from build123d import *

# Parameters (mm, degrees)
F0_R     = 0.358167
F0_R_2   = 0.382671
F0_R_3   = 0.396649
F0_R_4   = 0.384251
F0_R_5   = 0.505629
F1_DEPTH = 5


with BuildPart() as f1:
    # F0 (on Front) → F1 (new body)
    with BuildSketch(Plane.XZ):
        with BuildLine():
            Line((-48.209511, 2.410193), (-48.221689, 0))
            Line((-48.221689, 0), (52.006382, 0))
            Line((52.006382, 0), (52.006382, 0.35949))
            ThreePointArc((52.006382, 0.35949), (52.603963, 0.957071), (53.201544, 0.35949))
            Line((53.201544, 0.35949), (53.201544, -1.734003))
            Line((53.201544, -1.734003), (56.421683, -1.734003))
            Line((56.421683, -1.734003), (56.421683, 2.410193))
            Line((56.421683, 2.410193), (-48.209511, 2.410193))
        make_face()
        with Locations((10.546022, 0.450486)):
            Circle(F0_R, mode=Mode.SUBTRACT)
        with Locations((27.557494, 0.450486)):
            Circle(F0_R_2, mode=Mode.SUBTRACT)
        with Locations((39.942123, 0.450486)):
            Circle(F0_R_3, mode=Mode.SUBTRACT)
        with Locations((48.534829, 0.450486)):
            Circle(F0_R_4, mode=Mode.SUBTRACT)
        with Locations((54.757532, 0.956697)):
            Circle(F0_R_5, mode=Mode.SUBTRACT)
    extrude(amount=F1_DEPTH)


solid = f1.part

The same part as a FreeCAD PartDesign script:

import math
import FreeCAD as App
import Part
import Sketcher

V = App.Vector
Q = App.Units.Quantity

doc = App.newDocument("Part")
body = doc.addObject("PartDesign::Body", "Body")

# Sketch on XZ plane
sketch1 = body.newObject("Sketcher::SketchObject", "Sketch")
sketch1.AttachmentSupport = (doc.getObject("XZ_Plane"), [""])
sketch1.MapMode = "FlatFace"
sketch1.addGeometry([
    Part.LineSegment(V(-48.21, 2.41, 0), V(-48.22, 0, 0)),  # 0
    Part.LineSegment(V(-48.22, 0, 0), V(52.01, 0, 0)),  # 1
    Part.LineSegment(V(52.01, 0, 0), V(52.01, 0.36, 0)),  # 2
    Part.ArcOfCircle(Part.Circle(V(52.6, 0.36, 0), V(0, 0, 1), 0.6), math.radians(0), math.radians(180)),  # 3
    Part.LineSegment(V(53.2, 0.36, 0), V(53.2, -1.73, 0)),  # 4
    Part.LineSegment(V(53.2, -1.73, 0), V(56.42, -1.73, 0)),  # 5
    Part.LineSegment(V(56.42, -1.73, 0), V(56.42, 2.41, 0)),  # 6
    Part.LineSegment(V(56.42, 2.41, 0), V(-48.21, 2.41, 0)),  # 7
    Part.Circle(V(10.55, 0.45, 0), V(0, 0, 1), 0.36),  # 8
    Part.Circle(V(27.56, 0.45, 0), V(0, 0, 1), 0.38),  # 9
    Part.Circle(V(39.94, 0.45, 0), V(0, 0, 1), 0.4),  # 10
    Part.Circle(V(48.53, 0.45, 0), V(0, 0, 1), 0.38),  # 11
    Part.Circle(V(54.76, 0.96, 0), V(0, 0, 1), 0.51),  # 12
], False)
sketch1.addConstraint([
    Sketcher.Constraint("Coincident", 0, 2, 1, 1),
    Sketcher.Constraint("Coincident", 1, 2, 2, 1),
    Sketcher.Constraint("Tangent", 2, 2, 3, 2),
    Sketcher.Constraint("Tangent", 3, 1, 4, 1),
    Sketcher.Constraint("Coincident", 4, 2, 5, 1),
    Sketcher.Constraint("Coincident", 5, 2, 6, 1),
    Sketcher.Constraint("Coincident", 6, 2, 7, 1),
    Sketcher.Constraint("Coincident", 7, 2, 0, 1),
    Sketcher.Constraint("Horizontal", 1),
    Sketcher.Constraint("Vertical", 2),
    Sketcher.Constraint("Vertical", 4),
    Sketcher.Constraint("Horizontal", 5),
    Sketcher.Constraint("Vertical", 6),
    Sketcher.Constraint("Horizontal", 7),
    Sketcher.Constraint("PointOnObject", 0, 2, -1),
    Sketcher.Constraint("Horizontal", 8, 3, 9, 3),
    Sketcher.Constraint("Horizontal", 9, 3, 10, 3),
    Sketcher.Constraint("Horizontal", 10, 3, 11, 3),
    Sketcher.Constraint("Diameter", 9, Q("0.765342 mm")),
    Sketcher.Constraint("Radius", 3, Q("0.597581 mm")),
    Sketcher.Constraint("Diameter", 8, Q("0.716334 mm")),
    Sketcher.Constraint("Diameter", 10, Q("0.793298 mm")),
    Sketcher.Constraint("Diameter", 11, Q("0.768502 mm")),
    Sketcher.Constraint("Diameter", 12, Q("1.011258 mm")),
    Sketcher.Constraint("DistanceX", 1, 1, 1, 2, Q("100.228071 mm")),
    Sketcher.Constraint("DistanceX", 5, 1, 5, 2, Q("3.220139 mm")),
    Sketcher.Constraint("DistanceY", 2, 1, 2, 2, Q("0.35949 mm")),
    Sketcher.Constraint("DistanceX", 8, 3, 10, 3, Q("29.396101 mm")),
    Sketcher.Constraint("DistanceY", 4, 2, 12, 3, Q("2.6907 mm")),
    Sketcher.Constraint("DistanceX", 7, 2, 7, 1, Q("104.631194 mm")),
    Sketcher.Constraint("DistanceY", 4, 2, 4, 1, Q("2.093493 mm")),
    Sketcher.Constraint("DistanceY", 6, 1, 6, 2, Q("4.144196 mm")),
    Sketcher.Constraint("DistanceX", -1, 1, 11, 3, Q("48.534829 mm")),
    Sketcher.Constraint("DistanceX", -1, 1, 12, 3, Q("54.757532 mm")),
    Sketcher.Constraint("DistanceX", 0, 2, -1, 1, Q("48.221689 mm")),
    Sketcher.Constraint("DistanceX", 8, 3, 3, 3, Q("42.057941 mm")),
    Sketcher.Constraint("DistanceX", 8, 3, 9, 3, Q("17.011472 mm")),
    Sketcher.Constraint("DistanceY", 11, 3, 12, 3, Q("0.506211 mm")),
])
pad1 = body.newObject("PartDesign::Pad", "Pad")
pad1.Profile = sketch1
pad1.Length = 5

doc.recompute()
